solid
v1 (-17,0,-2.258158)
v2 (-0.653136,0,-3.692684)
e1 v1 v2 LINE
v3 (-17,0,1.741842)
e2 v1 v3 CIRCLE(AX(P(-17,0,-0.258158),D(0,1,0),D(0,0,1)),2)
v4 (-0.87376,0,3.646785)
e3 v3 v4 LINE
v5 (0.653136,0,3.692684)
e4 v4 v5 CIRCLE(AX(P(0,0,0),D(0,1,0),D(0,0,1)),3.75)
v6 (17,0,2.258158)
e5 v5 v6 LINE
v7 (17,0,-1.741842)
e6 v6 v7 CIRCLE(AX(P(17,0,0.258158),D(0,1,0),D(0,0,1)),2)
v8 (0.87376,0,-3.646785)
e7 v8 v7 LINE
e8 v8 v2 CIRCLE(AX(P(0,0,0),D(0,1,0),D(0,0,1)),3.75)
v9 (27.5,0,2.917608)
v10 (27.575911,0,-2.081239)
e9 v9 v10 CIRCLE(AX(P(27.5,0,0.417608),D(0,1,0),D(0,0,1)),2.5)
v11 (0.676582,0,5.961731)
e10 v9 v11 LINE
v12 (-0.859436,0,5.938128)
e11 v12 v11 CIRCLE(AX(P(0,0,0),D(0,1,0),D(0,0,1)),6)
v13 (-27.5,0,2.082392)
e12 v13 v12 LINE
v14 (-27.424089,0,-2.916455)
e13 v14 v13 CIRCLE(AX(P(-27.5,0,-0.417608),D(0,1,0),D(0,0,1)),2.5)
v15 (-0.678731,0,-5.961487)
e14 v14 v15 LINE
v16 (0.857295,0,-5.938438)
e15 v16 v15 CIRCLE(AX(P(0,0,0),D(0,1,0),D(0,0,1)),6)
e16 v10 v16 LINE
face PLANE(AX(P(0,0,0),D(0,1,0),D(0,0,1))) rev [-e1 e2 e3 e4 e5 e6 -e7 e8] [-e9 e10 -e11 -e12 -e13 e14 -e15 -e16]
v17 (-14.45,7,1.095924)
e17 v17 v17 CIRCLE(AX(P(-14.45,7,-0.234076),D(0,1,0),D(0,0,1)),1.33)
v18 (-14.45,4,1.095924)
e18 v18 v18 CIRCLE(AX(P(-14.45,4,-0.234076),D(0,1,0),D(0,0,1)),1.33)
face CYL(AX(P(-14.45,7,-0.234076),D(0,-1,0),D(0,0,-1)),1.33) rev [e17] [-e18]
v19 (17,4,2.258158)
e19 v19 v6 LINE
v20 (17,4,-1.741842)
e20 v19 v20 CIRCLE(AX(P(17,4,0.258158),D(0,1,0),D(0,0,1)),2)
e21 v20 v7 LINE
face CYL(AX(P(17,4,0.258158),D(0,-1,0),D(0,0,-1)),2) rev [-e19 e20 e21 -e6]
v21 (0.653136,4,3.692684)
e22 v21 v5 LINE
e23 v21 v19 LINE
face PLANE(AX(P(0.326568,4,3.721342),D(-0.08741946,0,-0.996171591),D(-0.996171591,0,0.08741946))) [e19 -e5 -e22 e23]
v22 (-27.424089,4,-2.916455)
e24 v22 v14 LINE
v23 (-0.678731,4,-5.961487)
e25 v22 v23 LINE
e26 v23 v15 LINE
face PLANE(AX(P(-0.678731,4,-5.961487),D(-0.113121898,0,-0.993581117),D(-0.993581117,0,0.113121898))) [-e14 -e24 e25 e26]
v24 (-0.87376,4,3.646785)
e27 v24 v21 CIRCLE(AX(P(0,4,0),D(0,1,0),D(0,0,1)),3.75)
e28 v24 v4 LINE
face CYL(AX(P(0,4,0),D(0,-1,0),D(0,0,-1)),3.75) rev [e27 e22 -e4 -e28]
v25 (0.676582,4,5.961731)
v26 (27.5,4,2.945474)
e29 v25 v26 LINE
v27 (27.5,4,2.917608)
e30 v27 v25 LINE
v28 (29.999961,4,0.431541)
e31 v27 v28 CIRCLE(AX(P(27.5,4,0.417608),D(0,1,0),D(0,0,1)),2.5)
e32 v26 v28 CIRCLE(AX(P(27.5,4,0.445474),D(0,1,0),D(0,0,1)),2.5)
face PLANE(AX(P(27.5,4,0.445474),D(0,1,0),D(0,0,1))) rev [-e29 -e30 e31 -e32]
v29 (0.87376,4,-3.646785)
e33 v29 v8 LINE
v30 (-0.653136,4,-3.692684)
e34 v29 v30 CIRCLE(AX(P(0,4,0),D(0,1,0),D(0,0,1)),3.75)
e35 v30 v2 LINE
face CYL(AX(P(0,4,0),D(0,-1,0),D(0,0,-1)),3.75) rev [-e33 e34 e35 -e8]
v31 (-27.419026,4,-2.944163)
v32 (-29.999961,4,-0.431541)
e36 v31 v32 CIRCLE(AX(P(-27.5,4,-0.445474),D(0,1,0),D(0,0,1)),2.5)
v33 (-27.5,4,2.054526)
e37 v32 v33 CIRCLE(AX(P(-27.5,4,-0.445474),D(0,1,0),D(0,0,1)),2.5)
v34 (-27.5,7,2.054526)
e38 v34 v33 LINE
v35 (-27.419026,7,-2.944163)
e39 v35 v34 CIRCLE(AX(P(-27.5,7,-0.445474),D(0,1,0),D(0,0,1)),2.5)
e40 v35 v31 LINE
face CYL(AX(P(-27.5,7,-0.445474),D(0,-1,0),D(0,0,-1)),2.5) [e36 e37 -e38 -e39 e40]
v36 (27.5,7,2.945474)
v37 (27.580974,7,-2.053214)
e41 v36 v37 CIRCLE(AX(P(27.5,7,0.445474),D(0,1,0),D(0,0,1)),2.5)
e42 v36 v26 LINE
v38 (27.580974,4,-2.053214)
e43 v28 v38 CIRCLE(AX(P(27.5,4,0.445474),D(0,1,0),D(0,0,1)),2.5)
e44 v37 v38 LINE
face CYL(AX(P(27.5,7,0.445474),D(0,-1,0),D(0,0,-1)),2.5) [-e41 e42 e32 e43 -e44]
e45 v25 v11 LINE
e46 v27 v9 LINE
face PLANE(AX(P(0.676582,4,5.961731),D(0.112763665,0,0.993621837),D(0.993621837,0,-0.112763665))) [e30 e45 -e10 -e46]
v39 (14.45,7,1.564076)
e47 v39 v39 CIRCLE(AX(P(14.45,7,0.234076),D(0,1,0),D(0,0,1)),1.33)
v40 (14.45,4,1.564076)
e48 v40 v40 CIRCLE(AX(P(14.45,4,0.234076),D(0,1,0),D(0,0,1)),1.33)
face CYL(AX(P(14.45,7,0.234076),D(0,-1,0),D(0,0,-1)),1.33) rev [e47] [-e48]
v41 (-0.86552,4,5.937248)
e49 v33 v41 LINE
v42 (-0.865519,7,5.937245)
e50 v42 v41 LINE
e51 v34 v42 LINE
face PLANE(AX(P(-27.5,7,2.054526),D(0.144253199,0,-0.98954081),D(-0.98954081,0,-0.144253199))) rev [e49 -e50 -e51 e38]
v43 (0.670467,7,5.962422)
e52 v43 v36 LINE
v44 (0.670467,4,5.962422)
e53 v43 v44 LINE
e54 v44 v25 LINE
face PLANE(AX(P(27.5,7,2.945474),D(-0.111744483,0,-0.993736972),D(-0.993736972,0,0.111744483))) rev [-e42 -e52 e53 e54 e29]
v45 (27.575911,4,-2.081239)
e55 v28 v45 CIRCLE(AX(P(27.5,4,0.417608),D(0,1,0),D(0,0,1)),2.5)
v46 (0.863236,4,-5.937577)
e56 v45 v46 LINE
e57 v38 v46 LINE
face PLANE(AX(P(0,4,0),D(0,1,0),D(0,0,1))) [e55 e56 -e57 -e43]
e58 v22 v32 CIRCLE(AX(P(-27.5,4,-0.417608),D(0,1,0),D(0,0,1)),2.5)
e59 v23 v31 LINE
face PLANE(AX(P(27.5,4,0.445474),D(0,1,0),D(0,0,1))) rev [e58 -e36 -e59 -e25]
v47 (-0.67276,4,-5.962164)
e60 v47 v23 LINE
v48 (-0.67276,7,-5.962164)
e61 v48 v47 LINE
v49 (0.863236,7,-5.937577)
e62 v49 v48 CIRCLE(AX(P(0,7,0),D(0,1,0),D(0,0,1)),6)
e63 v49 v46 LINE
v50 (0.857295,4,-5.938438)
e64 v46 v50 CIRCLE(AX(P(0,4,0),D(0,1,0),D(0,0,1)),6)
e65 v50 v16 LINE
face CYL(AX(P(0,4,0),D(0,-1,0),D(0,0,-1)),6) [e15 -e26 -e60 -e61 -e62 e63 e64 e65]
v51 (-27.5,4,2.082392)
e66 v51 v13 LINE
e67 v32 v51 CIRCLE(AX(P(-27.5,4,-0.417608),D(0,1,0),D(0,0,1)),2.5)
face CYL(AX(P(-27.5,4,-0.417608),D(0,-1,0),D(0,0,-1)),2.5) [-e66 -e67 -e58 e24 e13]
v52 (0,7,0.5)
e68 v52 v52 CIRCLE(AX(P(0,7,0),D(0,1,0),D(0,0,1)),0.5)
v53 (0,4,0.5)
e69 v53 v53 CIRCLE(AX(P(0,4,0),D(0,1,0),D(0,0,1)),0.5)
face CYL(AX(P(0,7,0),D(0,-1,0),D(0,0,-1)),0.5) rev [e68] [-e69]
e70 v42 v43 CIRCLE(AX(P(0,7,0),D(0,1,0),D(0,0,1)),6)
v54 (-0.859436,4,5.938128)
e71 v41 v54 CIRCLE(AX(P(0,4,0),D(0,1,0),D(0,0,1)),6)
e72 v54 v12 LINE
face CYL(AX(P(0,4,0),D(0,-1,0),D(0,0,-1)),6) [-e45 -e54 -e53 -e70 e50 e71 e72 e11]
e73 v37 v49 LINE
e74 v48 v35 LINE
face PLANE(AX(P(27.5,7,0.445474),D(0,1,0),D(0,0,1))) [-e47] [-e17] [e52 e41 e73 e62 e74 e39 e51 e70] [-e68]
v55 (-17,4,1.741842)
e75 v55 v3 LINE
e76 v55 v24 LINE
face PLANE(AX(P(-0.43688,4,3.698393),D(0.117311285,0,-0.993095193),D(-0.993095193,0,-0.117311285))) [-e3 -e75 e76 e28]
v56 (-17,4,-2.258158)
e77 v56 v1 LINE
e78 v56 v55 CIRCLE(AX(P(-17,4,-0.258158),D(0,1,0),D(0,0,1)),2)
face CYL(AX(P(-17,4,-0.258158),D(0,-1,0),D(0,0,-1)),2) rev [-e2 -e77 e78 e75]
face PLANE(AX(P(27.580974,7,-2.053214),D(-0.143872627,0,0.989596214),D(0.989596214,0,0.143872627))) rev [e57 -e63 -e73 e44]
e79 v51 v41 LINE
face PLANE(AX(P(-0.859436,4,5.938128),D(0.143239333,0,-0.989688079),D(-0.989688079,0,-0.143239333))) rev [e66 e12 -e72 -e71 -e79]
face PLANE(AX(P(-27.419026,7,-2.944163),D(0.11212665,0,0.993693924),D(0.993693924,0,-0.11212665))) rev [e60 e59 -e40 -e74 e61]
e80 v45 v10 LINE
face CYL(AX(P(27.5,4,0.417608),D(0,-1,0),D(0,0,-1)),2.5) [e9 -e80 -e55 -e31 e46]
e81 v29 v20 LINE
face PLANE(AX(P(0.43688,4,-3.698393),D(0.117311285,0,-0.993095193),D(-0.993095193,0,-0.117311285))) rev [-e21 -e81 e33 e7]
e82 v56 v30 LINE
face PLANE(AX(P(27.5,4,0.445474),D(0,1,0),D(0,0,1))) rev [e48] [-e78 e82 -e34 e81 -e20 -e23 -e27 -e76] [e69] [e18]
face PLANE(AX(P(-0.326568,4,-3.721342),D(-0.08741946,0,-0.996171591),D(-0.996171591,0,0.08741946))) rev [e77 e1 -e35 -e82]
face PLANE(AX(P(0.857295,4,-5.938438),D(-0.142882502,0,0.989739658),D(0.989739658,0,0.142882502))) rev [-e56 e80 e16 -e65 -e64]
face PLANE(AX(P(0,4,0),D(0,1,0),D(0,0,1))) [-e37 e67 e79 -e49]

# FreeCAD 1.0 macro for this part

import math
import FreeCAD as App
import Part
import Sketcher

V = App.Vector
Q = App.Units.Quantity

doc = App.newDocument("Part")
params = doc.addObject("Spreadsheet::Sheet", "Params")
for row, (alias, value) in enumerate([
    ("sketch1_radius", "6 mm"),
    ("sketch1_radius2", "2 mm"),
    ("sketch1_radius3", "2.5 mm"),
    ("sketch1_radius4", "3.75 mm"),
    ("pad1_length", "4 mm"),
    ("sketch2_diameter", "1 mm"),
    ("sketch2_radius", "6 mm"),
    ("sketch2_radius2", "2.5 mm"),
    ("sketch2_diameter2", "2.66 mm"),
    ("pad2_length", "3 mm"),
], start=1):
    params.set(f"A{row}", alias)
    params.set(f"B{row}", "=" + value)
    params.setAlias(f"B{row}", alias)

body = doc.addObject("PartDesign::Body", "Body")

# Sketch on XZ plane
sketch1 = doc.addObject("Sketcher::SketchObject", "Sketch")
body.addObject(sketch1)
sketch1.AttachmentSupport = (doc.XZ_Plane, [""])
sketch1.MapMode = "FlatFace"
sketch1.addGeometry([
    Part.ArcOfCircle(Part.Circle(V(27.5, 0.417608, 0), V(0, 0, 1), 2.5), math.radians(-88.259975), math.radians(90)),  # 0
    Part.LineSegment(V(27.575911, -2.081239, 0), V(0.857295, -5.938438, 0)),  # 1
    Part.ArcOfCircle(Part.Circle(V(0, 0, 0), V(0, 0, 1), 6), math.radians(-96.495311), math.radians(-81.785321)),  # 2
    Part.LineSegment(V(-0.678731, -5.961487, 0), V(-27.424089, -2.916455, 0)),  # 3
    Part.ArcOfCircle(Part.Circle(V(-27.5, -0.417608, 0), V(0, 0, 1), 2.5), math.radians(90), math.radians(271.740025)),  # 4
    Part.LineSegment(V(-27.5, 2.082392, 0), V(-0.859436, 5.938128, 0)),  # 5
    Part.ArcOfCircle(Part.Circle(V(0, 0, 0), V(0, 0, 1), 6), math.radians(83.525347), math.radians(98.235336)),  # 6
    Part.LineSegment(V(0.676582, 5.961731, 0), V(27.5, 2.917608, 0)),  # 7
    Part.LineSegment(V(-0.87376, 3.646785, 0), V(-17, 1.741842, 0)),  # 8
    Part.ArcOfCircle(Part.Circle(V(-17, -0.258158, 0), V(0, 0, 1), 2), math.radians(90), math.radians(270)),  # 9
    Part.LineSegment(V(-17, -2.258158, 0), V(-0.653136, -3.692684, 0)),  # 10
    Part.ArcOfCircle(Part.Circle(V(0, 0, 0), V(0, 0, 1), 3.75), math.radians(-100.030336), math.radians(-90)),  # 11
    Part.ArcOfCircle(Part.Circle(V(0, 0, 0), V(0, 0, 1), 3.75), math.radians(-90), math.radians(-76.526091)),  # 12
    Part.LineSegment(V(0.87376, -3.646785, 0), V(17, -1.741842, 0)),  # 13
    Part.ArcOfCircle(Part.Circle(V(17, 0.258158, 0), V(0, 0, 1), 2), math.radians(-90), math.radians(90)),  # 14
    Part.LineSegment(V(17, 2.258158, 0), V(0.653136, 3.692684, 0)),  # 15
    Part.ArcOfCircle(Part.Circle(V(0, 0, 0), V(0, 0, 1), 3.75), math.radians(79.969664), math.radians(90)),  # 16
    Part.ArcOfCircle(Part.Circle(V(0, 0, 0), V(0, 0, 1), 3.75), math.radians(90), math.radians(103.473909)),  # 17
], False)
sketch1.addConstraint([
    Sketcher.Constraint("Coincident", 0, 1, 1, 1),
    Sketcher.Constraint("Tangent", 1, 2, 2, 2),
    Sketcher.Constraint("Tangent", 2, 1, 3, 1),
    Sketcher.Constraint("Coincident", 3, 2, 4, 2),
    Sketcher.Constraint("Coincident", 4, 1, 5, 1),
    Sketcher.Constraint("Tangent", 5, 2, 6, 2),
    Sketcher.Constraint("Tangent", 6, 1, 7, 1),
    Sketcher.Constraint("Coincident", 7, 2, 0, 2),
    Sketcher.Constraint("Coincident", 8, 2, 9, 1),
    Sketcher.Constraint("Coincident", 9, 2, 10, 1),
    Sketcher.Constraint("Coincident", 10, 2, 11, 1),
    Sketcher.Constraint("Tangent", 11, 2, 12, 1),
    Sketcher.Constraint("Coincident", 12, 2, 13, 1),
    Sketcher.Constraint("Coincident", 13, 2, 14, 1),
    Sketcher.Constraint("Coincident", 14, 2, 15, 1),
    Sketcher.Constraint("Coincident", 15, 2, 16, 1),
    Sketcher.Constraint("Tangent", 16, 2, 17, 1),
    Sketcher.Constraint("Coincident", 17, 2, 8, 1),
    Sketcher.Constraint("Coincident", 2, 3, -1, 1),
    Sketcher.Constraint("Coincident", 6, 3, -1, 1),
    Sketcher.Constraint("Coincident", 11, 3, -1, 1),
    Sketcher.Constraint("Coincident", 16, 3, -1, 1),
    Sketcher.Constraint("Equal", 0, 4),
    Sketcher.Constraint("Equal", 2, 6),
    Sketcher.Constraint("Equal", 11, 12),
    Sketcher.Constraint("Equal", 9, 14),
    Sketcher.Constraint("Equal", 12, 16),
    Sketcher.Constraint("Equal", 16, 17),
    Sketcher.Constraint("Symmetric", 0, 3, 4, 3, -1, 1),
    Sketcher.Constraint("Symmetric", 9, 3, 14, 3, -1, 1),
    Sketcher.Constraint("PointOnObject", 11, 2, -2),
    Sketcher.Constraint("PointOnObject", 16, 2, -2),
    Sketcher.Constraint("Parallel", 8, 13),
    Sketcher.Constraint("Parallel", 10, 15),
    Sketcher.Constraint("Vertical", 0, 3, 7, 2),
    Sketcher.Constraint("Vertical", 9, 3, 8, 2),
    Sketcher.Constraint("Vertical", 8, 2, 9, 2),
    Sketcher.Constraint("Vertical", 14, 3, 13, 2),
    Sketcher.Constraint("Vertical", 13, 2, 14, 2),
    Sketcher.Constraint("Equal", 3, 5),
    Sketcher.Constraint("Equal", 1, 7),
    Sketcher.Constraint("Radius", 2, Q("6 mm")),
    Sketcher.Constraint("Radius", 9, Q("2 mm")),
    Sketcher.Constraint("Radius", 0, Q("2.5 mm")),
    Sketcher.Constraint("Radius", 11, Q("3.75 mm")),
    Sketcher.Constraint("DistanceX", 9, 3, -1, 1, Q("17 mm")),
    Sketcher.Constraint("DistanceX", 4, 3, 0, 3, Q("55 mm")),
    Sketcher.Constraint("DistanceX", 4, 1, -1, 1, Q("27.5 mm")),
    Sketcher.Constraint("Distance", 1, Q("26.9956 mm")),
    Sketcher.Constraint("DistanceY", 10, 2, 12, 2, Q("0.045898 mm")),
    Sketcher.Constraint("DistanceY", 2, 1, 12, 2, Q("2.314701 mm")),
    Sketcher.Constraint("DistanceY", 4, 3, 9, 3, Q("0.15945 mm")),
])
sketch1.setExpression("Constraints[41]", "Params.sketch1_radius")
sketch1.setExpression("Constraints[42]", "Params.sketch1_radius2")
sketch1.setExpression("Constraints[43]", "Params.sketch1_radius3")
sketch1.setExpression("Constraints[44]", "Params.sketch1_radius4")
pad1 = doc.addObject("PartDesign::Pad", "Pad")
body.addObject(pad1)
pad1.Profile = sketch1
pad1.setExpression("Length", "Params.pad1_length")
pad1.Reversed = True

# Sketch on XZ plane
sketch2 = doc.addObject("Sketcher::SketchObject", "Sketch001")
body.addObject(sketch2)
sketch2.AttachmentSupport = (doc.XZ_Plane, [""])
sketch2.MapMode = "FlatFace"
sketch2.AttachmentOffset = App.Placement(V(0, 0, -4), App.Rotation())
sketch2.addGeometry([
    Part.LineSegment(V(27.580974, -2.053214, 0), V(0.863236, -5.937577, 0)),  # 0
    Part.ArcOfCircle(Part.Circle(V(0, 0, 0), V(0, 0, 1), 6), math.radians(-96.437922), math.radians(-81.727999)),  # 1
    Part.LineSegment(V(-0.67276, -5.962164, 0), V(-27.419026, -2.944163, 0)),  # 2
    Part.ArcOfCircle(Part.Circle(V(-27.5, -0.445474, 0), V(0, 0, 1), 2.5), math.radians(90), math.radians(271.856114)),  # 3
    Part.LineSegment(V(-27.5, 2.054526, 0), V(-0.865519, 5.937245, 0)),  # 4
    Part.ArcOfCircle(Part.Circle(V(0, 0, 0), V(0, 0, 1), 6), math.radians(83.584113), math.radians(98.294036)),  # 5
    Part.LineSegment(V(0.670467, 5.962422, 0), V(27.5, 2.945474, 0)),  # 6
    Part.ArcOfCircle(Part.Circle(V(27.5, 0.445474, 0), V(0, 0, 1), 2.5), math.radians(-88.143886), math.radians(90)),  # 7
    Part.Circle(V(14.45, 0.234076, 0), V(0, 0, 1), 1.33),  # 8
    Part.Circle(V(-14.45, -0.234076, 0), V(0, 0, 1), 1.33),  # 9
    Part.Circle(V(0, 0, 0), V(0, 0, 1), 0.5),  # 10
], False)
sketch2.addConstraint([
    Sketcher.Constraint("Tangent", 0, 2, 1, 2),
    Sketcher.Constraint("Tangent", 1, 1, 2, 1),
    Sketcher.Constraint("Coincident", 2, 2, 3, 2),
    Sketcher.Constraint("Coincident", 3, 1, 4, 1),
    Sketcher.Constraint("Tangent", 4, 2, 5, 2),
    Sketcher.Constraint("Tangent", 5, 1, 6, 1),
    Sketcher.Constraint("Coincident", 6, 2, 7, 2),
    Sketcher.Constraint("Coincident", 7, 1, 0, 1),
    Sketcher.Constraint("Coincident", 1, 3, -1, 1),
    Sketcher.Constraint("Coincident", 5, 3, -1, 1),
    Sketcher.Constraint("Coincident", 10, 3, -1, 1),
    Sketcher.Constraint("Equal", 1, 5),
    Sketcher.Constraint("Equal", 3, 7),
    Sketcher.Constraint("Equal", 8, 9),
    Sketcher.Constraint("Symmetric", 3, 3, 7, 3, -1, 1),
    Sketcher.Constraint("Symmetric", 8, 3, 9, 3, -1, 1),
    Sketcher.Constraint("Vertical", 7, 3, 6, 2),
    Sketcher.Constraint("Equal", 2, 4),
    Sketcher.Constraint("Equal", 0, 6),
    Sketcher.Constraint("Diameter", 10, Q("1 mm")),
    Sketcher.Constraint("Radius", 1, Q("6 mm")),
    Sketcher.Constraint("Radius", 3, Q("2.5 mm")),
    Sketcher.Constraint("Diameter", 8, Q("2.66 mm")),
    Sketcher.Constraint("DistanceX", 3, 3, 7, 3, Q("55 mm")),
    Sketcher.Constraint("DistanceX", 3, 1, -1, 1, Q("27.5 mm")),
    Sketcher.Constraint("DistanceX", 9, 3, 8, 3, Q("28.9 mm")),
    Sketcher.Constraint("Distance", 2, Q("26.916 mm")),
    Sketcher.Constraint("DistanceY", 0, 2, 9, 3, Q("5.703501 mm")),
])
sketch2.setExpression("Constraints[19]", "Params.sketch2_diameter")
sketch2.setExpression("Constraints[20]", "Params.sketch2_radius")
sketch2.setExpression("Constraints[21]", "Params.sketch2_radius2")
sketch2.setExpression("Constraints[22]", "Params.sketch2_diameter2")
pad2 = doc.addObject("PartDesign::Pad", "Pad001")
body.addObject(pad2)
pad2.Profile = sketch2
pad2.setExpression("Length", "Params.pad2_length")
pad2.Reversed = True

doc.recompute()
